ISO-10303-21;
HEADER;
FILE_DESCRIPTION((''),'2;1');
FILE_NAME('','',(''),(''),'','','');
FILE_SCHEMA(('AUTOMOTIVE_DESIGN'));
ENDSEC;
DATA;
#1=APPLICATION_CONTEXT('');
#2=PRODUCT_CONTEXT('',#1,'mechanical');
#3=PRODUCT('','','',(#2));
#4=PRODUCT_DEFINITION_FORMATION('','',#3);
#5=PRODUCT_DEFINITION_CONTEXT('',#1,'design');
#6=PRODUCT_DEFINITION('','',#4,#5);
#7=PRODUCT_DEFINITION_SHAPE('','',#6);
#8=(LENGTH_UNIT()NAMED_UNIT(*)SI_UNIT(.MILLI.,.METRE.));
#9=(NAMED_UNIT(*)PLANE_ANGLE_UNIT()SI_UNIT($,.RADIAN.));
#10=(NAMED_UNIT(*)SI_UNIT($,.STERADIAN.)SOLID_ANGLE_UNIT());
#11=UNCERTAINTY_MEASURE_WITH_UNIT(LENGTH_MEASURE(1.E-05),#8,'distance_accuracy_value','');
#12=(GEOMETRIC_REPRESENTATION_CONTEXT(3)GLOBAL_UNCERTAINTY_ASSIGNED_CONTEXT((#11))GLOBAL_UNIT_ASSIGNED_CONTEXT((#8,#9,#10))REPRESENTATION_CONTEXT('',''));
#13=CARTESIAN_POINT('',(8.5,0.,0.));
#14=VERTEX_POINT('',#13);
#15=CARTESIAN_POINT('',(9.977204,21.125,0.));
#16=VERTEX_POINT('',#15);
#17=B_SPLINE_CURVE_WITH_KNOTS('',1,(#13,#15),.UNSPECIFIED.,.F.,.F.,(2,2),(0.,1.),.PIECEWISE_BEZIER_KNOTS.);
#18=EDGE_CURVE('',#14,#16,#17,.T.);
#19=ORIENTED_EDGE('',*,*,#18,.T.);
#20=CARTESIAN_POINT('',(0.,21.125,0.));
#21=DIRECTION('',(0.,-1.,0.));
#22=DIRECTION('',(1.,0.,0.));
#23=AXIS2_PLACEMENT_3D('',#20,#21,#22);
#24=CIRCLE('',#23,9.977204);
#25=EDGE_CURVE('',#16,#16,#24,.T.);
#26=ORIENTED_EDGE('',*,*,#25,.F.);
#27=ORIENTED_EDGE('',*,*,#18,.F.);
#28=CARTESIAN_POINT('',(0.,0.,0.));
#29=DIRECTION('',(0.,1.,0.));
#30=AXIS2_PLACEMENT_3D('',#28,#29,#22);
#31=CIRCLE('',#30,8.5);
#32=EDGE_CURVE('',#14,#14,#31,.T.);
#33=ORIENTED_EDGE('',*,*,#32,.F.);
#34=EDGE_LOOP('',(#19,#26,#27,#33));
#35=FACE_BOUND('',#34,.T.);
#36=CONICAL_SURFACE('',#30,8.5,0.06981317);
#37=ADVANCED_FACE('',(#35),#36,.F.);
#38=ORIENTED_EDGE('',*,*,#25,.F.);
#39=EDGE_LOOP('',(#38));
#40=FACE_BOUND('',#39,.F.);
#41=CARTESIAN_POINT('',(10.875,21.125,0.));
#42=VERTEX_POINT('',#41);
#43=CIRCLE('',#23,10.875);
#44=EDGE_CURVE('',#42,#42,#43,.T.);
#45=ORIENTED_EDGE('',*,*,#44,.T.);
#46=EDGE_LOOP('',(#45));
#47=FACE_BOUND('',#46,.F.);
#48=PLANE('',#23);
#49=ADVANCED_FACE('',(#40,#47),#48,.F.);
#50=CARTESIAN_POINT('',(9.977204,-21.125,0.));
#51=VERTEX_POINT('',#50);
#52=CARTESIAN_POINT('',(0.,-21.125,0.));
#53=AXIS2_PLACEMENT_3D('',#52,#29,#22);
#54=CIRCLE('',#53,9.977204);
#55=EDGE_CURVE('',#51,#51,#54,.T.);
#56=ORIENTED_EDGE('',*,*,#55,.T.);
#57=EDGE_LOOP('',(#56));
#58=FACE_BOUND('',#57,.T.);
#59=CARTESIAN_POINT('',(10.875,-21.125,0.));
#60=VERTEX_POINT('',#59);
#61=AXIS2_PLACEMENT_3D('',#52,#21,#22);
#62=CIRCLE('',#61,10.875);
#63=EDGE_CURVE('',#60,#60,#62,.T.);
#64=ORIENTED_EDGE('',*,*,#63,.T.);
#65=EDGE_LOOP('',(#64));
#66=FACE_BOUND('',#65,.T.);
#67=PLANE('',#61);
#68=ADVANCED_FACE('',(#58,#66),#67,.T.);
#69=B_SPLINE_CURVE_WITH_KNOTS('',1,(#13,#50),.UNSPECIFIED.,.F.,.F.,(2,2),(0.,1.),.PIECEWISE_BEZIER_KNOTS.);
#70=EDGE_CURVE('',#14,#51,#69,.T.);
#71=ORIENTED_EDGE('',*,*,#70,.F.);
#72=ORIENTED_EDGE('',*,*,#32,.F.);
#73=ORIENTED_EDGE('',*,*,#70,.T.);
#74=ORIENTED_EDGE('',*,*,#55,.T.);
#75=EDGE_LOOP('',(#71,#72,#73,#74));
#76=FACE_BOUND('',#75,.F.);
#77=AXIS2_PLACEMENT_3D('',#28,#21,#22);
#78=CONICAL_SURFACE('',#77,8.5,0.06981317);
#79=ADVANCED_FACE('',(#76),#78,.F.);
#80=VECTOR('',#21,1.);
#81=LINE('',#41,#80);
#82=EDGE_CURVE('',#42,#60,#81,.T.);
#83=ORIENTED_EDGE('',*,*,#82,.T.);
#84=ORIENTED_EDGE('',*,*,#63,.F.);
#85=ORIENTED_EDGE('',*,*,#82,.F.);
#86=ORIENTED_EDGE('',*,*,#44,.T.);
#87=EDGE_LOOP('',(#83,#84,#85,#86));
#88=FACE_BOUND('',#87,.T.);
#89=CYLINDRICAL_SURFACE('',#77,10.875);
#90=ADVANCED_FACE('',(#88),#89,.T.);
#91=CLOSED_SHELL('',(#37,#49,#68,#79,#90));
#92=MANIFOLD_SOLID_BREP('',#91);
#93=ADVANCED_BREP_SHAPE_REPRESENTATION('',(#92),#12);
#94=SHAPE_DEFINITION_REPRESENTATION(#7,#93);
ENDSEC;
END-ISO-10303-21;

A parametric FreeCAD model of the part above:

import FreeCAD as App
import Part
import Sketcher
from FreeCAD import Vector

doc = App.newDocument("Part")
params = doc.addObject("Spreadsheet::Sheet", "Params")
for row, (alias, value) in enumerate([
    ("sketch1_diameter", "17 mm"),
    ("sketch1_diameter2", "21.75 mm"),
    ("pad1_length", "42.25 mm"),
    ("sketch2_diameter", "17 mm"),
    ("pocket1_length", "42.25 mm"),
    ("pocket1_taper", "4 deg"),
], start=1):
    params.set(f"A{row}", alias)
    params.set(f"B{row}", "=" + value)
    params.setAlias(f"B{row}", alias)

body = doc.addObject("PartDesign::Body", "Body")

# Sketch on XZ plane
sketch1 = body.newObject("Sketcher::SketchObject", "Sketch")
sketch1.AttachmentSupport = (doc.getObject("XZ_Plane"), [""])
sketch1.MapMode = "FlatFace"
sketch1.addGeometry([
    Part.Circle(Vector(0, 0, 0), Vector(0, 0, 1), 10.875),
    Part.Circle(Vector(0, 0, 0), Vector(0, 0, 1), 8.5),
], False)
sketch1.addConstraint([
    Sketcher.Constraint("Coincident", 0, 3, -1, 1),
    Sketcher.Constraint("Coincident", 1, 3, -1, 1),
    Sketcher.Constraint("Diameter", 1, 17.0),
    Sketcher.Constraint("Diameter", 0, 21.75),
])
sketch1.setExpression("Constraints[2]", "Params.sketch1_diameter")
sketch1.setExpression("Constraints[3]", "Params.sketch1_diameter2")
pad1 = body.newObject("PartDesign::Pad", "Pad")
pad1.Profile = sketch1
pad1.setExpression("Length", "Params.pad1_length")
pad1.Midplane = True

# Sketch on XZ plane
sketch2 = body.newObject("Sketcher::SketchObject", "Sketch001")
sketch2.AttachmentSupport = (doc.getObject("XZ_Plane"), [""])
sketch2.MapMode = "FlatFace"
sketch2.addGeometry(Part.Circle(Vector(0, 0, 0), Vector(0, 0, 1), 8.5), False)
sketch2.addConstraint([
    Sketcher.Constraint("Coincident", 0, 3, -1, 1),
    Sketcher.Constraint("Diameter", 0, 17.0),
])
sketch2.setExpression("Constraints[1]", "Params.sketch2_diameter")
pocket1 = body.newObject("PartDesign::Pocket", "Pocket")
pocket1.Profile = sketch2
pocket1.setExpression("Length", "Params.pocket1_length")
pocket1.Midplane = True
pocket1.setExpression("TaperAngle", "Params.pocket1_taper")

doc.recompute()
